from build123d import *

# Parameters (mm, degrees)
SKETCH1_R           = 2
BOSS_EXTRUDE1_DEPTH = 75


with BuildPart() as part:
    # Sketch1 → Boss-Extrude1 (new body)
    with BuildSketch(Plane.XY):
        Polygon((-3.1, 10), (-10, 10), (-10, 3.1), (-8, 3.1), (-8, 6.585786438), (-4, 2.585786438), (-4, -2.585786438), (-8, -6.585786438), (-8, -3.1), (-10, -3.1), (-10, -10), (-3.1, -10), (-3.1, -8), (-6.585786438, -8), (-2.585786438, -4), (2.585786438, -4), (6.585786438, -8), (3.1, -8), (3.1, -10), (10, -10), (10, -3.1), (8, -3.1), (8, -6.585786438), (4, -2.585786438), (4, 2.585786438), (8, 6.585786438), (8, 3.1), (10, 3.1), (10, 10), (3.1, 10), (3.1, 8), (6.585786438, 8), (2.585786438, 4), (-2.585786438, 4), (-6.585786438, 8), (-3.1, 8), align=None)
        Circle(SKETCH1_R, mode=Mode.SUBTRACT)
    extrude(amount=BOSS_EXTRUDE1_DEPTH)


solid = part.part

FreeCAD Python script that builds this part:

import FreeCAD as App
import Part
import Sketcher
from FreeCAD import Vector
Q = App.Units.Quantity

doc = App.newDocument("Part")
body = doc.addObject("PartDesign::Body", "Body")

# Sketch on XY plane
sketch1 = body.newObject("Sketcher::SketchObject", "Sketch")
sketch1.AttachmentSupport = (doc.getObject("XY_Plane"), [""])
sketch1.MapMode = "FlatFace"
sketch1.addGeometry([
    Part.LineSegment(Vector(-3.1, 10, 0), Vector(-10, 10, 0)),  # 0
    Part.LineSegment(Vector(-10, 10, 0), Vector(-10, 3.1, 0)),  # 1
    Part.LineSegment(Vector(-10, 3.1, 0), Vector(-8, 3.1, 0)),  # 2
    Part.LineSegment(Vector(-8, 3.1, 0), Vector(-8, 6.6, 0)),  # 3
    Part.LineSegment(Vector(-8, 6.6, 0), Vector(-4, 2.6, 0)),  # 4
    Part.LineSegment(Vector(-4, 2.6, 0), Vector(-4, -2.6, 0)),  # 5
    Part.LineSegment(Vector(-4, -2.6, 0), Vector(-8, -6.6, 0)),  # 6
    Part.LineSegment(Vector(-8, -6.6, 0), Vector(-8, -3.1, 0)),  # 7
    Part.LineSegment(Vector(-8, -3.1, 0), Vector(-10, -3.1, 0)),  # 8
    Part.LineSegment(Vector(-10, -3.1, 0), Vector(-10, -10, 0)),  # 9
    Part.LineSegment(Vector(-10, -10, 0), Vector(-3.1, -10, 0)),  # 10
    Part.LineSegment(Vector(-3.1, -10, 0), Vector(-3.1, -8, 0)),  # 11
    Part.LineSegment(Vector(-3.1, -8, 0), Vector(-6.6, -8, 0)),  # 12
    Part.LineSegment(Vector(-6.6, -8, 0), Vector(-2.6, -4, 0)),  # 13
    Part.LineSegment(Vector(-2.6, -4, 0), Vector(2.6, -4, 0)),  # 14
    Part.LineSegment(Vector(2.6, -4, 0), Vector(6.6, -8, 0)),  # 15
    Part.LineSegment(Vector(6.6, -8, 0), Vector(3.1, -8, 0)),  # 16
    Part.LineSegment(Vector(3.1, -8, 0), Vector(3.1, -10, 0)),  # 17
    Part.LineSegment(Vector(3.1, -10, 0), Vector(10, -10, 0)),  # 18
    Part.LineSegment(Vector(10, -10, 0), Vector(10, -3.1, 0)),  # 19
    Part.LineSegment(Vector(10, -3.1, 0), Vector(8, -3.1, 0)),  # 20
    Part.LineSegment(Vector(8, -3.1, 0), Vector(8, -6.6, 0)),  # 21
    Part.LineSegment(Vector(8, -6.6, 0), Vector(4, -2.6, 0)),  # 22
    Part.LineSegment(Vector(4, -2.6, 0), Vector(4, 2.6, 0)),  # 23
    Part.LineSegment(Vector(4, 2.6, 0), Vector(8, 6.6, 0)),  # 24
    Part.LineSegment(Vector(8, 6.6, 0), Vector(8, 3.1, 0)),  # 25
    Part.LineSegment(Vector(8, 3.1, 0), Vector(10, 3.1, 0)),  # 26
    Part.LineSegment(Vector(10, 3.1, 0), Vector(10, 10, 0)),  # 27
    Part.LineSegment(Vector(10, 10, 0), Vector(3.1, 10, 0)),  # 28
    Part.LineSegment(Vector(3.1, 10, 0), Vector(3.1, 8, 0)),  # 29
    Part.LineSegment(Vector(3.1, 8, 0), Vector(6.6, 8, 0)),  # 30
    Part.LineSegment(Vector(6.6, 8, 0), Vector(2.6, 4, 0)),  # 31
    Part.LineSegment(Vector(2.6, 4, 0), Vector(-2.6, 4, 0)),  # 32
    Part.LineSegment(Vector(-2.6, 4, 0), Vector(-6.6, 8, 0)),  # 33
    Part.LineSegment(Vector(-6.6, 8, 0), Vector(-3.1, 8, 0)),  # 34
    Part.LineSegment(Vector(-3.1, 8, 0), Vector(-3.1, 10, 0)),  # 35
    Part.Circle(Vector(0, 0, 0), Vector(0, 0, 1), 2),  # 36
], False)
sketch1.addConstraint([
    Sketcher.Constraint("Coincident", 0, 2, 1, 1),
    Sketcher.Constraint("Coincident", 1, 2, 2, 1),
    Sketcher.Constraint("Coincident", 2, 2, 3, 1),
    Sketcher.Constraint("Coincident", 3, 2, 4, 1),
    Sketcher.Constraint("Coincident", 4, 2, 5, 1),
    Sketcher.Constraint("Coincident", 5, 2, 6, 1),
    Sketcher.Constraint("Coincident", 6, 2, 7, 1),
    Sketcher.Constraint("Coincident", 7, 2, 8, 1),
    Sketcher.Constraint("Coincident", 8, 2, 9, 1),
    Sketcher.Constraint("Coincident", 9, 2, 10, 1),
    Sketcher.Constraint("Coincident", 10, 2, 11, 1),
    Sketcher.Constraint("Coincident", 11, 2, 12, 1),
    Sketcher.Constraint("Coincident", 12, 2, 13, 1),
    Sketcher.Constraint("Coincident", 13, 2, 14, 1),
    Sketcher.Constraint("Coincident", 14, 2, 15, 1),
    Sketcher.Constraint("Coincident", 15, 2, 16, 1),
    Sketcher.Constraint("Coincident", 16, 2, 17, 1),
    Sketcher.Constraint("Coincident", 17, 2, 18, 1),
    Sketcher.Constraint("Coincident", 18, 2, 19, 1),
    Sketcher.Constraint("Coincident", 19, 2, 20, 1),
    Sketcher.Constraint("Coincident", 20, 2, 21, 1),
    Sketcher.Constraint("Coincident", 21, 2, 22, 1),
    Sketcher.Constraint("Coincident", 22, 2, 23, 1),
    Sketcher.Constraint("Coincident", 23, 2, 24, 1),
    Sketcher.Constraint("Coincident", 24, 2, 25, 1),
    Sketcher.Constraint("Coincident", 25, 2, 26, 1),
    Sketcher.Constraint("Coincident", 26, 2, 27, 1),
    Sketcher.Constraint("Coincident", 27, 2, 28, 1),
    Sketcher.Constraint("Coincident", 28, 2, 29, 1),
    Sketcher.Constraint("Coincident", 29, 2, 30, 1),
    Sketcher.Constraint("Coincident", 30, 2, 31, 1),
    Sketcher.Constraint("Coincident", 31, 2, 32, 1),
    Sketcher.Constraint("Coincident", 32, 2, 33, 1),
    Sketcher.Constraint("Coincident", 33, 2, 34, 1),
    Sketcher.Constraint("Coincident", 34, 2, 35, 1),
    Sketcher.Constraint("Coincident", 35, 2, 0, 1),
    Sketcher.Constraint("Horizontal", 0),
    Sketcher.Constraint("Vertical", 1),
    Sketcher.Constraint("Horizontal", 2),
    Sketcher.Constraint("Vertical", 3),
    Sketcher.Constraint("Vertical", 5),
    Sketcher.Constraint("Vertical", 7),
    Sketcher.Constraint("Horizontal", 8),
    Sketcher.Constraint("Vertical", 9),
    Sketcher.Constraint("Horizontal", 10),
    Sketcher.Constraint("Vertical", 11),
    Sketcher.Constraint("Horizontal", 12),
    Sketcher.Constraint("Horizontal", 14),
    Sketcher.Constraint("Horizontal", 16),
    Sketcher.Constraint("Vertical", 17),
    Sketcher.Constraint("Horizontal", 18),
    Sketcher.Constraint("Vertical", 19),
    Sketcher.Constraint("Horizontal", 20),
    Sketcher.Constraint("Vertical", 21),
    Sketcher.Constraint("Vertical", 23),
    Sketcher.Constraint("Vertical", 25),
    Sketcher.Constraint("Horizontal", 26),
    Sketcher.Constraint("Vertical", 27),
    Sketcher.Constraint("Horizontal", 28),
    Sketcher.Constraint("Vertical", 29),
    Sketcher.Constraint("Horizontal", 30),
    Sketcher.Constraint("Horizontal", 32),
    Sketcher.Constraint("Horizontal", 34),
    Sketcher.Constraint("Vertical", 35),
    Sketcher.Constraint("Coincident", 36, 3, -1, 1),
    Sketcher.Constraint("Symmetric", 0, 2, 18, 2, -1, 1),
    Sketcher.Constraint("Symmetric", 2, 2, 20, 2, -1, 1),
    Sketcher.Constraint("Symmetric", 4, 2, 22, 2, -1, 1),
    Sketcher.Constraint("Symmetric", 6, 2, 24, 2, -1, 1),
    Sketcher.Constraint("Symmetric", 8, 2, 26, 2, -1, 1),
    Sketcher.Constraint("Symmetric", 10, 2, 28, 2, -1, 1),
    Sketcher.Constraint("Symmetric", 12, 2, 30, 2, -1, 1),
    Sketcher.Constraint("Symmetric", 13, 2, 31, 2, -1, 1),
    Sketcher.Constraint("Symmetric", 15, 2, 33, 2, -1, 1),
    Sketcher.Constraint("Symmetric", 12, 2, 15, 2, -2),
    Sketcher.Constraint("Symmetric", 10, 2, 17, 2, -2),
    Sketcher.Constraint("Symmetric", 8, 2, 19, 2, -2),
    Sketcher.Constraint("Symmetric", 6, 2, 21, 2, -2),
    Sketcher.Constraint("Perpendicular", 4, 6),
    Sketcher.Constraint("Parallel", 6, 13),
    Sketcher.Constraint("Perpendicular", 13, 15),
    Sketcher.Constraint("Parallel", 15, 22),
    Sketcher.Constraint("Perpendicular", 22, 24),
    Sketcher.Constraint("Perpendicular", 31, 33),
    Sketcher.Constraint("Horizontal", 5, 2, 22, 2),
    Sketcher.Constraint("Vertical", 11, 2, 34, 2),
    Sketcher.Constraint("Equal", 28, 1),
    Sketcher.Constraint("Equal", 34, 3),
    Sketcher.Constraint("Equal", 32, 5),
    Sketcher.Constraint("Equal", 26, 11),
    Sketcher.Constraint("Equal", 6, 13),
    Sketcher.Constraint("Diameter", 36, Q("4 mm")),
    Sketcher.Constraint("DistanceX", 2, 1, 2, 2, Q("2 mm")),
    Sketcher.Constraint("DistanceX", 0, 2, 0, 1, Q("6.9 mm")),
    Sketcher.Constraint("DistanceX", 0, 2, -1, 1, Q("10 mm")),
    Sketcher.Constraint("DistanceX", 4, 2, -1, 1, Q("4 mm")),
    Sketcher.Constraint("DistanceX", 12, 2, 12, 1, Q("3.485786 mm")),
])
pad1 = body.newObject("PartDesign::Pad", "Pad")
pad1.Profile = sketch1
pad1.Length = 75

doc.recompute()
